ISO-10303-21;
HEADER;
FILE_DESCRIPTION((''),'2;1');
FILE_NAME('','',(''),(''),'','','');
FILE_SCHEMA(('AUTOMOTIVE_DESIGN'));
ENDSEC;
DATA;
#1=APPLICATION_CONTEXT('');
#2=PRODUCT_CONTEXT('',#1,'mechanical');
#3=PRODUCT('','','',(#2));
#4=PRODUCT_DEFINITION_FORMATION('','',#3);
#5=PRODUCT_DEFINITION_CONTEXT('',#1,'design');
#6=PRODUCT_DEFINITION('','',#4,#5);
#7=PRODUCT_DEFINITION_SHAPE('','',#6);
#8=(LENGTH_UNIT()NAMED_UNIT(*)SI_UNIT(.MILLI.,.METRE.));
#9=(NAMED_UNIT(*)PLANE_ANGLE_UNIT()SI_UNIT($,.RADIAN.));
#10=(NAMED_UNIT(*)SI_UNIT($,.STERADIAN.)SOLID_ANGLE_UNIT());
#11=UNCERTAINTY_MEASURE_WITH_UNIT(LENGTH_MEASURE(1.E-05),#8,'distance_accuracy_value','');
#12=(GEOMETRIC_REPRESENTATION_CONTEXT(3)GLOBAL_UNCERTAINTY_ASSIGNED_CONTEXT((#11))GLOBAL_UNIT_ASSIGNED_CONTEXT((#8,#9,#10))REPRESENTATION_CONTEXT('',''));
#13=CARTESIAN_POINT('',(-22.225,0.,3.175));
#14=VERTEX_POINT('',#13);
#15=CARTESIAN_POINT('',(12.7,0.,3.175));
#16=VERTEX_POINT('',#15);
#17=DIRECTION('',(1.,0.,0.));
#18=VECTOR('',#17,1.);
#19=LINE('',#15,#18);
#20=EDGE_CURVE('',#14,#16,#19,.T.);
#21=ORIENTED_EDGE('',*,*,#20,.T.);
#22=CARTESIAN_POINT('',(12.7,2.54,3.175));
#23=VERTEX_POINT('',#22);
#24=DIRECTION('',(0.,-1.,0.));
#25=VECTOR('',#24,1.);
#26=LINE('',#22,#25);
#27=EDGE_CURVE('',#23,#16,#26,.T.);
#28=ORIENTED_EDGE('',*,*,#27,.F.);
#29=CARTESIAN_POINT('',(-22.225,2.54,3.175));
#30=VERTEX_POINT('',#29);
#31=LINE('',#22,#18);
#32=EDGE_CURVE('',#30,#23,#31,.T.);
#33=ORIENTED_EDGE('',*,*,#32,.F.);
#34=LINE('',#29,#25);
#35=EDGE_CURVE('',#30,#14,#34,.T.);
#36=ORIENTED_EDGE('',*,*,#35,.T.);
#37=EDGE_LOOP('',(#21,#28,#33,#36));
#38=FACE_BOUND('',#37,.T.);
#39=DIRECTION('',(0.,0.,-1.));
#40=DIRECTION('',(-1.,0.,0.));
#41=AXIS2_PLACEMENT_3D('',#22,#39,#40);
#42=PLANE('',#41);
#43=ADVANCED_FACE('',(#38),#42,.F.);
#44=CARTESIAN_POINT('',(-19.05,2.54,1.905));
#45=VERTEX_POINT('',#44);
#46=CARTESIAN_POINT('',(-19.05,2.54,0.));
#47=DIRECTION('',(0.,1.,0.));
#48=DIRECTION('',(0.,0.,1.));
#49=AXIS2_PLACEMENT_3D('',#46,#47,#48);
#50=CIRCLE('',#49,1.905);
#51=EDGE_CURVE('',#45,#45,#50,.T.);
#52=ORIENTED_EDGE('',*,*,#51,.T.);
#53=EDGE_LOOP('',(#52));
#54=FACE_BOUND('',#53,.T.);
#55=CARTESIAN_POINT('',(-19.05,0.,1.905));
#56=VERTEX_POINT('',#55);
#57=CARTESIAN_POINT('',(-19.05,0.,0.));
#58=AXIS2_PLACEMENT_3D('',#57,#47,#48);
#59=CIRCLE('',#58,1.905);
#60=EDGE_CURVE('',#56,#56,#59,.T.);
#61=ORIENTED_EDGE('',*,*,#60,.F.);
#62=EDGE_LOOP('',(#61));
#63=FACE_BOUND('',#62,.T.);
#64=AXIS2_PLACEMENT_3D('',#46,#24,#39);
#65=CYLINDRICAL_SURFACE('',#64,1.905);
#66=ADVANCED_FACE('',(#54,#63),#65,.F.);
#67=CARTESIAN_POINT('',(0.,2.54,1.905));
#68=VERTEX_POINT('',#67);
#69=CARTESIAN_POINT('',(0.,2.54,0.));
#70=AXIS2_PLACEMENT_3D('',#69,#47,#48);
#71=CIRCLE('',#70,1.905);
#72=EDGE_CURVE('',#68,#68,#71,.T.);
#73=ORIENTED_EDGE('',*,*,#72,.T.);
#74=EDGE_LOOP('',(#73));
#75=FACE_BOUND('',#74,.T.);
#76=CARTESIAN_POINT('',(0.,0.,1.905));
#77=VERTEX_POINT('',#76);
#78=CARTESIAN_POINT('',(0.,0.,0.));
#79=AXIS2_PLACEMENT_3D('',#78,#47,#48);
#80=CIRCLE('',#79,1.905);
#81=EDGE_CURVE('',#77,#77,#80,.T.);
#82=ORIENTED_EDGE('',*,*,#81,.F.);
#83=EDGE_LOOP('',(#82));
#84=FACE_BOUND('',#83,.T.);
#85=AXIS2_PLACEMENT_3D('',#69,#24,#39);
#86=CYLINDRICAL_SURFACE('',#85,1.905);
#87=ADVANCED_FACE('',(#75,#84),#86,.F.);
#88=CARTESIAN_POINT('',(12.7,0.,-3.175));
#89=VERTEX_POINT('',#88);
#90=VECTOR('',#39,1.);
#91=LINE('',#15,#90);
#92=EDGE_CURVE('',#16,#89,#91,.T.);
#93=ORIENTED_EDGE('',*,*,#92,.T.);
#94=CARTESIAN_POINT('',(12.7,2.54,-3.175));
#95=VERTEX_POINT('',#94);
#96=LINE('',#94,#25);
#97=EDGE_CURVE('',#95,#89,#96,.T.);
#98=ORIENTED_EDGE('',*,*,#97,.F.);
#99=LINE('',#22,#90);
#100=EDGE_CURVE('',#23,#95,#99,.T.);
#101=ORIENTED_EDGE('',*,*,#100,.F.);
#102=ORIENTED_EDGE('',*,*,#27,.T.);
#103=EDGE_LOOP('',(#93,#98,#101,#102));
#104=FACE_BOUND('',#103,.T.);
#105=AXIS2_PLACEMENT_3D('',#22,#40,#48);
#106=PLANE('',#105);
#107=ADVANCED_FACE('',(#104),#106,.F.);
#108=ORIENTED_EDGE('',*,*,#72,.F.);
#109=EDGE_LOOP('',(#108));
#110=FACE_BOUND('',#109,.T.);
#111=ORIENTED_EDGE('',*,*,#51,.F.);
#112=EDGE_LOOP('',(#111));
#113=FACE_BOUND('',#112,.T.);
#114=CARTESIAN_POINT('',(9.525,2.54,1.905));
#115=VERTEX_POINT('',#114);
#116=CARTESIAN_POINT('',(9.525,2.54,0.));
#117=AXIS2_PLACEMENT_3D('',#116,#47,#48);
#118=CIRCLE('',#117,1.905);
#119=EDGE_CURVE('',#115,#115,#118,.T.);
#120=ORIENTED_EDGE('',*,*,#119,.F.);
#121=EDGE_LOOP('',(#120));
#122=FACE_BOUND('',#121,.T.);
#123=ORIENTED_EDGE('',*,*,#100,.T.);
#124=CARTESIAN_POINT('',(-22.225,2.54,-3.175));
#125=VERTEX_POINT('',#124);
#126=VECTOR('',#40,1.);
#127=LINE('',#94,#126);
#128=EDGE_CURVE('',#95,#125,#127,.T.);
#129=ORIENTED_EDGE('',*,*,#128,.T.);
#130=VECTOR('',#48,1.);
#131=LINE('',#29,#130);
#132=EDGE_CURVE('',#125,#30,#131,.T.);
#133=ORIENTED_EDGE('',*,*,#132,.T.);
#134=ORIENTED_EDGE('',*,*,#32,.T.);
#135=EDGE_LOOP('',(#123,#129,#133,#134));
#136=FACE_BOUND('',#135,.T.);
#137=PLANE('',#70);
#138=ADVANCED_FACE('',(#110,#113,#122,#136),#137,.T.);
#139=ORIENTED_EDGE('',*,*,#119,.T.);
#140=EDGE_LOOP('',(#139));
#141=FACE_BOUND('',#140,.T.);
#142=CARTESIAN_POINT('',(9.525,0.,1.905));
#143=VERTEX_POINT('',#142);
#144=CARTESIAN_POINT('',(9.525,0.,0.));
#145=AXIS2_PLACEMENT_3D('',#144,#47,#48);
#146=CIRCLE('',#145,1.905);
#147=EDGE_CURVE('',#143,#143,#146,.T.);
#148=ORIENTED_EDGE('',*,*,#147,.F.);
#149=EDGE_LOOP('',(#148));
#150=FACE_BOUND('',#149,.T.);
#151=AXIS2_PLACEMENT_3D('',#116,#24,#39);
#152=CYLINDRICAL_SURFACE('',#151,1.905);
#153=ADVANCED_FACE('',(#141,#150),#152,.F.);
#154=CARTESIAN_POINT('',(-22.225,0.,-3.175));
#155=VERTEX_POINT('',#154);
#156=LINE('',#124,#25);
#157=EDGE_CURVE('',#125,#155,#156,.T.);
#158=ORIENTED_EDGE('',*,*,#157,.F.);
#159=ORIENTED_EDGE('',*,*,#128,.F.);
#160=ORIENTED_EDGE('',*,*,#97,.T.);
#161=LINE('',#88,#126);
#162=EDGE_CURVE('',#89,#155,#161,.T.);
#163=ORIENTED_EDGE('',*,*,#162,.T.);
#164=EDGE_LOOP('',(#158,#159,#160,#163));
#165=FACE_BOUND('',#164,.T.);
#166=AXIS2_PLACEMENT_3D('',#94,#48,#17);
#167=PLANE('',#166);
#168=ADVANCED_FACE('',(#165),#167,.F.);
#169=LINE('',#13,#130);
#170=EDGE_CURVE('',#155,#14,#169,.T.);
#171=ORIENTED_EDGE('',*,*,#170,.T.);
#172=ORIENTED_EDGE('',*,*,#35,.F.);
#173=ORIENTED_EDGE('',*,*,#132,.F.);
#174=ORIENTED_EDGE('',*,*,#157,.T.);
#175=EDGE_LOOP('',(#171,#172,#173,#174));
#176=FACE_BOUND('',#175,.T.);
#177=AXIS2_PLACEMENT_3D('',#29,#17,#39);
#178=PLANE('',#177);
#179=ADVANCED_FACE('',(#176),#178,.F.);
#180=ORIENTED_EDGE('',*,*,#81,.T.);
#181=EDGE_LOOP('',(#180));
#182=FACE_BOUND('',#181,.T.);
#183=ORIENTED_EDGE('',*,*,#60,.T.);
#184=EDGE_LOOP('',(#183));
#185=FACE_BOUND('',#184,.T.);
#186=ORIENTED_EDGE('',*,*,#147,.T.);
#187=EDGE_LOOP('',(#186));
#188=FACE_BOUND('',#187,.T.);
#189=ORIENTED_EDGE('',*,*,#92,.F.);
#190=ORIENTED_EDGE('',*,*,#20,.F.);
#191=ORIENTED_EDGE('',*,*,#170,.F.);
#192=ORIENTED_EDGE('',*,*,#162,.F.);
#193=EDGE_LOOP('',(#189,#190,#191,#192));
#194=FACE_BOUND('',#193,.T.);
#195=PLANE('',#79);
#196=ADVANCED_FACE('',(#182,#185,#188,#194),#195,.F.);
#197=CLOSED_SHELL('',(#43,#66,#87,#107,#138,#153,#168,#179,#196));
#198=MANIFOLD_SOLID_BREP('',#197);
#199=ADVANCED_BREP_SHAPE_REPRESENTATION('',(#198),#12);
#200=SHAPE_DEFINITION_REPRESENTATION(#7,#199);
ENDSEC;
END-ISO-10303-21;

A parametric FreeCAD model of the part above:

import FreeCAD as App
import Part
import Sketcher

V = App.Vector
Q = App.Units.Quantity

doc = App.newDocument("Part")
body = doc.addObject("PartDesign::Body", "Body")

sketch1 = doc.addObject("Sketcher::SketchObject", "Sketch")
body.addObject(sketch1)
sketch1.AttachmentSupport = (doc.XZ_Plane, [""])
sketch1.MapMode = "FlatFace"
sketch1.addGeometry(Part.LineSegment(V(-22.2, -3.2, 0), V(-22.2, 3.2, 0)), False)
sketch1.addGeometry(Part.LineSegment(V(-22.2, 3.2, 0), V(12.7, 3.2, 0)), False)
sketch1.addGeometry(Part.LineSegment(V(12.7, 3.2, 0), V(12.7, -3.2, 0)), False)
sketch1.addGeometry(Part.LineSegment(V(12.7, -3.2, 0), V(-22.2, -3.2, 0)), False)
sketch1.addGeometry(Part.Circle(V(-19.1, 0, 0), V(0, 0, 1), 1.9), False)
sketch1.addGeometry(Part.Circle(V(0, 0, 0), V(0, 0, 1), 1.9), False)
sketch1.addGeometry(Part.Circle(V(9.5, 0, 0), V(0, 0, 1), 1.9), False)
sketch1.addConstraint(Sketcher.Constraint("Coincident", 0, 2, 1, 1))
sketch1.addConstraint(Sketcher.Constraint("Coincident", 1, 2, 2, 1))
sketch1.addConstraint(Sketcher.Constraint("Coincident", 2, 2, 3, 1))
sketch1.addConstraint(Sketcher.Constraint("Coincident", 3, 2, 0, 1))
sketch1.addConstraint(Sketcher.Constraint("Vertical", 0))
sketch1.addConstraint(Sketcher.Constraint("Horizontal", 1))
sketch1.addConstraint(Sketcher.Constraint("Vertical", 2))
sketch1.addConstraint(Sketcher.Constraint("Horizontal", 3))
sketch1.addConstraint(Sketcher.Constraint("Coincident", 5, 3, -1, 1))
sketch1.addConstraint(Sketcher.Constraint("Equal", 4, 5))
sketch1.addConstraint(Sketcher.Constraint("Equal", 5, 6))
sketch1.addConstraint(Sketcher.Constraint("PointOnObject", 4, 3, -1))
sketch1.addConstraint(Sketcher.Constraint("PointOnObject", 6, 3, -1))
sketch1.addConstraint(Sketcher.Constraint("Diameter", 4, Q("0.15 in")))
sketch1.addConstraint(Sketcher.Constraint("DistanceY", 0, 1, 0, 2, Q("0.25 in")))
sketch1.addConstraint(Sketcher.Constraint("DistanceX", -1, 1, 1, 2, Q("0.5 in")))
sketch1.addConstraint(Sketcher.Constraint("DistanceX", 1, 1, 1, 2, Q("1.375 in")))
sketch1.addConstraint(Sketcher.Constraint("DistanceX", 4, 3, -1, 1, Q("0.75 in")))
sketch1.addConstraint(Sketcher.Constraint("DistanceX", 0, 2, 6, 3, Q("1.25 in")))
sketch1.addConstraint(Sketcher.Constraint("DistanceY", -1, 1, 0, 2, Q("0.125 in")))
pad1 = doc.addObject("PartDesign::Pad", "Pad")
body.addObject(pad1)
pad1.Profile = sketch1
pad1.Length = Q("0.1 in")
pad1.Reversed = True

doc.recompute()
